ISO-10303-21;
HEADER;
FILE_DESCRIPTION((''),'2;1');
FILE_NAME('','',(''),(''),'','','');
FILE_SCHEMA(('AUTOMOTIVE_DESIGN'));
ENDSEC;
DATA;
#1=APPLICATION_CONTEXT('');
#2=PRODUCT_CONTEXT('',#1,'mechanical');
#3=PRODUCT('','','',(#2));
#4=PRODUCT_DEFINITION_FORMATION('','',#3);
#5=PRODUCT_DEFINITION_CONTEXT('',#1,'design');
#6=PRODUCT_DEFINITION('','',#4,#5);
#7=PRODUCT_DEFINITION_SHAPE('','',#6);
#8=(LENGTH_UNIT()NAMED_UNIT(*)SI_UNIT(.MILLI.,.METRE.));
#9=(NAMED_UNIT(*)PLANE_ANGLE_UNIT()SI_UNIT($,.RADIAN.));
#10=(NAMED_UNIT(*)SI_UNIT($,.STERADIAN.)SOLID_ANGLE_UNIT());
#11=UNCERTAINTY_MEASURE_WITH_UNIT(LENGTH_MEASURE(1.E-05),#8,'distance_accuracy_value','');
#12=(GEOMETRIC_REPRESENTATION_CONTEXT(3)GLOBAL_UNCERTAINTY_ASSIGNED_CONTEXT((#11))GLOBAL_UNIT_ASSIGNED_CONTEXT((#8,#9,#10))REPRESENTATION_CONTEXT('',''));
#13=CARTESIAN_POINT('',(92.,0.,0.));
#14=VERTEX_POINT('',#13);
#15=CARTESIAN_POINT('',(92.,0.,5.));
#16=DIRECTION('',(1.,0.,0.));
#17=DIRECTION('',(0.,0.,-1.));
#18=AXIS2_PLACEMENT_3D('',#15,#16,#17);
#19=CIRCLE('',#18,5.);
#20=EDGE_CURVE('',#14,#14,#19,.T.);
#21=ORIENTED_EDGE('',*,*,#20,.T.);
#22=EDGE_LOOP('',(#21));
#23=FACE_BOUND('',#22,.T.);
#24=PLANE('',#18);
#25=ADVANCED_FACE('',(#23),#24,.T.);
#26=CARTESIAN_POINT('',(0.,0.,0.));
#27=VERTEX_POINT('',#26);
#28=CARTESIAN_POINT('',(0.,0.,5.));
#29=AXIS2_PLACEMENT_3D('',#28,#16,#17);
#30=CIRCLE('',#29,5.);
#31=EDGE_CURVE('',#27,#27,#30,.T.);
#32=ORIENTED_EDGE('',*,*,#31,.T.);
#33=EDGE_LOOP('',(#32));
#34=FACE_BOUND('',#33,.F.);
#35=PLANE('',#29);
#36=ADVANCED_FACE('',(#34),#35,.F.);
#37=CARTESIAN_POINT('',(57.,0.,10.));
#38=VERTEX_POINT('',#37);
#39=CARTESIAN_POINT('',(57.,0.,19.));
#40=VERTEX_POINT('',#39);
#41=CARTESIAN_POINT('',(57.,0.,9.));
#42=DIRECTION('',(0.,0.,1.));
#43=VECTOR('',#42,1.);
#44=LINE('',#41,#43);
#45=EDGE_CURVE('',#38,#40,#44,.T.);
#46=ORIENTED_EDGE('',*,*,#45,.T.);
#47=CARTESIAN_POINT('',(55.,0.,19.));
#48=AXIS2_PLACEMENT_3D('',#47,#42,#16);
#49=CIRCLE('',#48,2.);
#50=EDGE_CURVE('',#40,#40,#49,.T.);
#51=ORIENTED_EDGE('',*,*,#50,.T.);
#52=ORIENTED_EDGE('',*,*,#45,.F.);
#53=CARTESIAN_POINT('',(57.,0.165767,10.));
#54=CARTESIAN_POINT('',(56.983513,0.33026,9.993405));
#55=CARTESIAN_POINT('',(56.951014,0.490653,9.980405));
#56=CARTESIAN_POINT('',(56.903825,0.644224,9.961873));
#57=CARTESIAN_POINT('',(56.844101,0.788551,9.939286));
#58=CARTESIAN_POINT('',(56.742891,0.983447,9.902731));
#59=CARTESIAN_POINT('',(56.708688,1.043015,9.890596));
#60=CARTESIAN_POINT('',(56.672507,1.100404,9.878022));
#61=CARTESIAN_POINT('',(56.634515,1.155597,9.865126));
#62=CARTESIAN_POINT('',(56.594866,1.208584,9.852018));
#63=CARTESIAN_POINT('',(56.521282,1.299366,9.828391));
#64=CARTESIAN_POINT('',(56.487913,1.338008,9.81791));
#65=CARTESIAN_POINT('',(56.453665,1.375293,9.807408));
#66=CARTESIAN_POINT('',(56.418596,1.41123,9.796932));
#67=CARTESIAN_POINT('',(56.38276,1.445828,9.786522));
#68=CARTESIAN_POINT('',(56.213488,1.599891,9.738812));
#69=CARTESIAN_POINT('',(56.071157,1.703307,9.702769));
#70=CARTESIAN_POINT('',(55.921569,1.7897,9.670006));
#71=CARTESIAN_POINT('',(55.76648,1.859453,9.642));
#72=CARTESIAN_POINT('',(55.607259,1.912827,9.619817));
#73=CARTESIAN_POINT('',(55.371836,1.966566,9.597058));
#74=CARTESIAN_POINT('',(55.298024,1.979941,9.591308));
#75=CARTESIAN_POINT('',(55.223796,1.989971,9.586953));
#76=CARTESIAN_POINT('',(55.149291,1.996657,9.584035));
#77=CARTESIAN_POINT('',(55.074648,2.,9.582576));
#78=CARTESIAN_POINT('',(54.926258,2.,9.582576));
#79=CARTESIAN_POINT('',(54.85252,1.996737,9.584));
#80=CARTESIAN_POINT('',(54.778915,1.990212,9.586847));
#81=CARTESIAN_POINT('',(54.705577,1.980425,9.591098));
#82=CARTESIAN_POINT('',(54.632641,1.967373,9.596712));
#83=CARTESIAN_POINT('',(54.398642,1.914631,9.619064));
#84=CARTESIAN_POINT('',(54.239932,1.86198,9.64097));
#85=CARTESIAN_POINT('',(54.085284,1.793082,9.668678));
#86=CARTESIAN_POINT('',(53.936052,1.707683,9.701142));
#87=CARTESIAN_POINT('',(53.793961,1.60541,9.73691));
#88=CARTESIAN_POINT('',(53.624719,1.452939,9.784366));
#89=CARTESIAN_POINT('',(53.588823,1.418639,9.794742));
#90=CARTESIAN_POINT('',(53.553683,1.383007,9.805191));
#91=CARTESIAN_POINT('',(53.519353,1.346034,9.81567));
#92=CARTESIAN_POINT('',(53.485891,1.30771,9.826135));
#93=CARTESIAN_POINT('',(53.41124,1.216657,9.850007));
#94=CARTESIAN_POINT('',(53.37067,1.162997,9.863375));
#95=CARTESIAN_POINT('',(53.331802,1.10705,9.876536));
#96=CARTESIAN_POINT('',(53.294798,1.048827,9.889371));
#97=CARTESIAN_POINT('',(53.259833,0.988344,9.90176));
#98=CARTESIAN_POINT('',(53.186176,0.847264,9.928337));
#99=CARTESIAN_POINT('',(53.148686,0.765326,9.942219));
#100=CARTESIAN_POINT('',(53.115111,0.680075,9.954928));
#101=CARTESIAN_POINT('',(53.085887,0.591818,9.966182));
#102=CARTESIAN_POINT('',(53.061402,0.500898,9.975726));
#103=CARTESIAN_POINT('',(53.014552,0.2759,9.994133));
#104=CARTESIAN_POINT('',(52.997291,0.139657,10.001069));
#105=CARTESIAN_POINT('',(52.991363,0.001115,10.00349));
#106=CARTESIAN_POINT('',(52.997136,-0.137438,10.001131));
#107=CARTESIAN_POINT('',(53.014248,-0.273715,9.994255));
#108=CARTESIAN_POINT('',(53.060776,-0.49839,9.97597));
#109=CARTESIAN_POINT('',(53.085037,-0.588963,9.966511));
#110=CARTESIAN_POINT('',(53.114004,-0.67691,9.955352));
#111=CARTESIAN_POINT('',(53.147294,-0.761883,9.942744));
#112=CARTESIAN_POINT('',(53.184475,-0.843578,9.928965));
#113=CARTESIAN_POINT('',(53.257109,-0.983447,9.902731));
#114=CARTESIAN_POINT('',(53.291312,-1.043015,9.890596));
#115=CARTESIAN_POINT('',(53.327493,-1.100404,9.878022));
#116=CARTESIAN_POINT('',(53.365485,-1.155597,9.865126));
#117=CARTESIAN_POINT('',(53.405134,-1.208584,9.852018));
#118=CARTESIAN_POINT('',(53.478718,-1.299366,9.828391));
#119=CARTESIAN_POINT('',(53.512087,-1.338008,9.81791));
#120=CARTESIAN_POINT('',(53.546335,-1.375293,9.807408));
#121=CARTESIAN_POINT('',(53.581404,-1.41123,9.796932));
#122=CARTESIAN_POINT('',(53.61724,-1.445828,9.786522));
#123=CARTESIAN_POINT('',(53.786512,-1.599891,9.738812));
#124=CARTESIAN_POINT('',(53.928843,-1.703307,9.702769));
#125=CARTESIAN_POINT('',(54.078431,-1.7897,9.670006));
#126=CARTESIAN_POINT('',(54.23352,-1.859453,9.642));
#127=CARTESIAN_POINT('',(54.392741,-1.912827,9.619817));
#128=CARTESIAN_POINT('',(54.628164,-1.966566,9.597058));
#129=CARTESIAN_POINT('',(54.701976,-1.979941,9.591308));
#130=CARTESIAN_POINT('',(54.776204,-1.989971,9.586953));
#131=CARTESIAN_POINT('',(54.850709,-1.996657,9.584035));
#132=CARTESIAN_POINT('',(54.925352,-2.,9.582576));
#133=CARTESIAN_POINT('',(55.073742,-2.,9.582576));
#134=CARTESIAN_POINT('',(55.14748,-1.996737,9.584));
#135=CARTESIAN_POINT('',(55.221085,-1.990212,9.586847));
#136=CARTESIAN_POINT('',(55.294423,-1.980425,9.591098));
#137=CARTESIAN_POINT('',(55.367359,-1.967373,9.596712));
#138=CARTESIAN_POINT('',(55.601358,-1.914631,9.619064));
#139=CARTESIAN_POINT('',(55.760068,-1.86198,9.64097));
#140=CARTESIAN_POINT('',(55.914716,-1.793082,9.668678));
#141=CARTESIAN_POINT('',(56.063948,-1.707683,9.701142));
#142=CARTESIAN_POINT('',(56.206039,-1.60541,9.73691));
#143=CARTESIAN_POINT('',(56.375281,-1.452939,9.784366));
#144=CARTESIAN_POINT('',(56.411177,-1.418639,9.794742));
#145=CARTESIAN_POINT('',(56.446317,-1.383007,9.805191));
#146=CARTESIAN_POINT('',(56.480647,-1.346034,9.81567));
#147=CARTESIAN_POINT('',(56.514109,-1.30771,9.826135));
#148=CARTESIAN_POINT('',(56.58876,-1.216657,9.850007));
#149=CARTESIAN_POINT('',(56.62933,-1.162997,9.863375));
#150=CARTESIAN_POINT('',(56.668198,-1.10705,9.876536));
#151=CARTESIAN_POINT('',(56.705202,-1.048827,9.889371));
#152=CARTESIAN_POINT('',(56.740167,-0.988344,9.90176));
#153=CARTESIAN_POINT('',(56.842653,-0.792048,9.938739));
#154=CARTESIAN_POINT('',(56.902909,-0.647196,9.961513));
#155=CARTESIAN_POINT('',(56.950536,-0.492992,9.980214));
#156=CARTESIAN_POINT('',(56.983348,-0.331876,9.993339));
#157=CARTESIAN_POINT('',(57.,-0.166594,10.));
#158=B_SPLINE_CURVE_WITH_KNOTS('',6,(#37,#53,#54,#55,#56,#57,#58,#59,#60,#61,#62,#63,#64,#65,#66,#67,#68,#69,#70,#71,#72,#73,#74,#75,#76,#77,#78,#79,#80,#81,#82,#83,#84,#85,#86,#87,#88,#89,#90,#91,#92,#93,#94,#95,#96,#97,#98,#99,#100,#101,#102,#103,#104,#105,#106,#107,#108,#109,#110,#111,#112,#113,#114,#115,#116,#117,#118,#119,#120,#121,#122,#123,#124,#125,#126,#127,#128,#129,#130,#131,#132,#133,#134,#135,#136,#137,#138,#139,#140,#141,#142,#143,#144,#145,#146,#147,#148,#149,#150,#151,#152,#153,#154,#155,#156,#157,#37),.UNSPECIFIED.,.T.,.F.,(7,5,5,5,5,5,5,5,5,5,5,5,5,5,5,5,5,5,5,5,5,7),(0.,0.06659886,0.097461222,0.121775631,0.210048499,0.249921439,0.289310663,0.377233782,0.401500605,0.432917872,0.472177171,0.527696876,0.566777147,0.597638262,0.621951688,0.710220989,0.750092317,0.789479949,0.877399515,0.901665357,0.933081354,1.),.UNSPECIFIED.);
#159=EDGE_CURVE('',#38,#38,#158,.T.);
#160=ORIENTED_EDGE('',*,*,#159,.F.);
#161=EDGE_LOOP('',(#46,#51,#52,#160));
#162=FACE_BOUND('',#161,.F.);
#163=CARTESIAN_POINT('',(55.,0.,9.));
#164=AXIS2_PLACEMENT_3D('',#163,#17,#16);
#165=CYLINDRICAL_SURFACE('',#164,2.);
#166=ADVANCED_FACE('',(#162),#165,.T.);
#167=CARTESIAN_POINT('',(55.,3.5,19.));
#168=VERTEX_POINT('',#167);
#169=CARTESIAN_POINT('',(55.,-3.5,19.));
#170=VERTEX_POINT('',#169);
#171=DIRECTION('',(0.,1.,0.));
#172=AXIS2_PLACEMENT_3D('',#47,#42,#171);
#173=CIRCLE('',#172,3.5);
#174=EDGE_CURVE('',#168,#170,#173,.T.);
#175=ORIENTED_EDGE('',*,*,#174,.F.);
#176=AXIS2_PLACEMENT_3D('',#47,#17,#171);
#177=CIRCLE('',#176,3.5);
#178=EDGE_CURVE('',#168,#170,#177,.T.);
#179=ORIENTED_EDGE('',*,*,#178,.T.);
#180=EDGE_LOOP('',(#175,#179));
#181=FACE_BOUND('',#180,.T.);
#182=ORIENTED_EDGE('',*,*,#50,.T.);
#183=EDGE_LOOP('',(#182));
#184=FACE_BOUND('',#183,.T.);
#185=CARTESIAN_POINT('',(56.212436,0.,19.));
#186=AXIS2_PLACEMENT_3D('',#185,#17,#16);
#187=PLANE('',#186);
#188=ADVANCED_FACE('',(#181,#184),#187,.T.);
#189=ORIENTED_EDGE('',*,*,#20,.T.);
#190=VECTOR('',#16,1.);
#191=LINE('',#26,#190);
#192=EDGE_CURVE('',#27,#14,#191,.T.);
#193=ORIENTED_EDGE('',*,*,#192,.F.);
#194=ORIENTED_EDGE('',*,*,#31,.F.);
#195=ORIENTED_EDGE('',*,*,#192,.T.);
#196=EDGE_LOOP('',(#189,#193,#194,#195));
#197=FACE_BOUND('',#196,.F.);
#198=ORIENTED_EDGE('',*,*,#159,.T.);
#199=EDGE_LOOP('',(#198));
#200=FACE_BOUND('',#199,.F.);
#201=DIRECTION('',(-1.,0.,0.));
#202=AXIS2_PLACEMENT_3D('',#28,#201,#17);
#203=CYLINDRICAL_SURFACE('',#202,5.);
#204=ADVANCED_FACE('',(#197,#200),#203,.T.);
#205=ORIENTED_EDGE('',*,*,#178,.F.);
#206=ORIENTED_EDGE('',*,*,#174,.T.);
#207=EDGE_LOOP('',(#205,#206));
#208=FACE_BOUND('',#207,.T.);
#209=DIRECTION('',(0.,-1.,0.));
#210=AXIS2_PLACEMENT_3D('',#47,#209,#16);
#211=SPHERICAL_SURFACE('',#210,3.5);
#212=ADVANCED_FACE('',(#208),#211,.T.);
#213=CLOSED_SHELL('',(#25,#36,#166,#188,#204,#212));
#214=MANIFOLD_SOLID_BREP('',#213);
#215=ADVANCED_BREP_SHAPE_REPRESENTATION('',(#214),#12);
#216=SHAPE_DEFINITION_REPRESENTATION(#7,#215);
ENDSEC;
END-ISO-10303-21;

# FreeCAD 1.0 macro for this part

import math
import FreeCAD as App
import Part
import Sketcher
Q = App.Units.Quantity

doc = App.newDocument("Part")
body = doc.addObject("PartDesign::Body", "Body")

# Sketch on XZ plane
sketch1 = doc.addObject("Sketcher::SketchObject", "Sketch")
body.addObject(sketch1)
sketch1.AttachmentSupport = (doc.XZ_Plane, [""])
sketch1.MapMode = "FlatFace"
sketch1.addGeometry([
    Part.ArcOfCircle(Part.Circle(App.Vector(0, 0, 0), App.Vector(0, 0, 1), 3.5), math.radians(-90), math.radians(90)),
    Part.LineSegment(App.Vector(0, 3.5, 0), App.Vector(0, -3.5, 0)),
], False)
sketch1.addConstraint([
    Sketcher.Constraint("Coincident", 0, 1, 1, 2),
    Sketcher.Constraint("Coincident", 1, 1, 0, 2),
    Sketcher.Constraint("Vertical", 1),
    Sketcher.Constraint("Coincident", 0, 3, -1, 1),
    Sketcher.Constraint("PointOnObject", 0, 1, -2),
    Sketcher.Constraint("Radius", 0, Q("3.5 mm")),
])
revolution = doc.addObject("PartDesign::Revolution", "Revolution")
body.addObject(revolution)
revolution.Profile = sketch1
revolution.ReferenceAxis = (sketch1, ["V_Axis"])
revolution.Angle = 180
body2 = doc.addObject("PartDesign::Body", "Body001")
doc.recompute()

body.Placement = App.Placement(App.Vector(0, 0, 0), App.Rotation(App.Vector(1, 0, 0), 90))
boolean = doc.addObject("PartDesign::Boolean", "Boolean")
body2.addObject(boolean)
boolean.Type = "Fuse"
boolean.addObjects([body])
body3 = doc.addObject("PartDesign::Body", "Body002")
doc.recompute()

body2.Placement = App.Placement(App.Vector(55, 0, 19), App.Rotation(App.Vector(0, 0, 1), 0))
boolean2 = doc.addObject("PartDesign::Boolean", "Boolean001")
body3.addObject(boolean2)
boolean2.Type = "Fuse"
boolean2.addObjects([body2])
body4 = doc.addObject("PartDesign::Body", "Body003")

# Sketch on XY plane
sketch2 = doc.addObject("Sketcher::SketchObject", "Sketch001")
body4.addObject(sketch2)
sketch2.AttachmentSupport = (doc.getObject("XY_Plane003"), [""])
sketch2.MapMode = "FlatFace"
sketch2.AttachmentOffset = App.Placement(App.Vector(0, 0, 9), App.Rotation())
sketch2.addGeometry(Part.Circle(App.Vector(55, 0, 0), App.Vector(0, 0, 1), 2), False)
sketch2.addConstraint([
    Sketcher.Constraint("PointOnObject", 0, 3, -1),
    Sketcher.Constraint("Diameter", 0, Q("4 mm")),
    Sketcher.Constraint("DistanceX", -1, 1, 0, 3, Q("55 mm")),
])
pad1 = doc.addObject("PartDesign::Pad", "Pad")
body4.addObject(pad1)
pad1.Profile = sketch2
pad1.Length = 10
body5 = doc.addObject("PartDesign::Body", "Body004")

# Sketch on XY plane
sketch3 = doc.addObject("Sketcher::SketchObject", "Sketch002")
body5.addObject(sketch3)
sketch3.AttachmentSupport = (doc.getObject("XY_Plane004"), [""])
sketch3.MapMode = "FlatFace"
sketch3.addGeometry(Part.Circle(App.Vector(0, 0, 0), App.Vector(0, 0, 1), 5), False)
sketch3.addConstraint([
    Sketcher.Constraint("Coincident", 0, 3, -1, 1),
    Sketcher.Constraint("Diameter", 0, Q("10 mm")),
])
pad2 = doc.addObject("PartDesign::Pad", "Pad001")
body5.addObject(pad2)
pad2.Profile = sketch3
pad2.Length = 92
body6 = doc.addObject("PartDesign::Body", "Body005")
doc.recompute()

body5.Placement = App.Placement(App.Vector(0, 0, 0), App.Rotation(App.Vector(0, 1, 0), 90))
boolean3 = doc.addObject("PartDesign::Boolean", "Boolean002")
body6.addObject(boolean3)
boolean3.Type = "Fuse"
boolean3.addObjects([body5])
body7 = doc.addObject("PartDesign::Body", "Body006")
doc.recompute()

body6.Placement = App.Placement(App.Vector(0, 0, 5), App.Rotation(App.Vector(0, 0, 1), 0))
boolean4 = doc.addObject("PartDesign::Boolean", "Boolean003")
body7.addObject(boolean4)
boolean4.Type = "Fuse"
boolean4.addObjects([body6])
doc.recompute()

boolean5 = doc.addObject("PartDesign::Boolean", "Boolean004")
body7.addObject(boolean5)
boolean5.Type = "Fuse"
boolean5.addObjects([body4])
doc.recompute()

boolean6 = doc.addObject("PartDesign::Boolean", "Boolean005")
body7.addObject(boolean6)
boolean6.Type = "Fuse"
boolean6.addObjects([body3])

doc.recompute()
